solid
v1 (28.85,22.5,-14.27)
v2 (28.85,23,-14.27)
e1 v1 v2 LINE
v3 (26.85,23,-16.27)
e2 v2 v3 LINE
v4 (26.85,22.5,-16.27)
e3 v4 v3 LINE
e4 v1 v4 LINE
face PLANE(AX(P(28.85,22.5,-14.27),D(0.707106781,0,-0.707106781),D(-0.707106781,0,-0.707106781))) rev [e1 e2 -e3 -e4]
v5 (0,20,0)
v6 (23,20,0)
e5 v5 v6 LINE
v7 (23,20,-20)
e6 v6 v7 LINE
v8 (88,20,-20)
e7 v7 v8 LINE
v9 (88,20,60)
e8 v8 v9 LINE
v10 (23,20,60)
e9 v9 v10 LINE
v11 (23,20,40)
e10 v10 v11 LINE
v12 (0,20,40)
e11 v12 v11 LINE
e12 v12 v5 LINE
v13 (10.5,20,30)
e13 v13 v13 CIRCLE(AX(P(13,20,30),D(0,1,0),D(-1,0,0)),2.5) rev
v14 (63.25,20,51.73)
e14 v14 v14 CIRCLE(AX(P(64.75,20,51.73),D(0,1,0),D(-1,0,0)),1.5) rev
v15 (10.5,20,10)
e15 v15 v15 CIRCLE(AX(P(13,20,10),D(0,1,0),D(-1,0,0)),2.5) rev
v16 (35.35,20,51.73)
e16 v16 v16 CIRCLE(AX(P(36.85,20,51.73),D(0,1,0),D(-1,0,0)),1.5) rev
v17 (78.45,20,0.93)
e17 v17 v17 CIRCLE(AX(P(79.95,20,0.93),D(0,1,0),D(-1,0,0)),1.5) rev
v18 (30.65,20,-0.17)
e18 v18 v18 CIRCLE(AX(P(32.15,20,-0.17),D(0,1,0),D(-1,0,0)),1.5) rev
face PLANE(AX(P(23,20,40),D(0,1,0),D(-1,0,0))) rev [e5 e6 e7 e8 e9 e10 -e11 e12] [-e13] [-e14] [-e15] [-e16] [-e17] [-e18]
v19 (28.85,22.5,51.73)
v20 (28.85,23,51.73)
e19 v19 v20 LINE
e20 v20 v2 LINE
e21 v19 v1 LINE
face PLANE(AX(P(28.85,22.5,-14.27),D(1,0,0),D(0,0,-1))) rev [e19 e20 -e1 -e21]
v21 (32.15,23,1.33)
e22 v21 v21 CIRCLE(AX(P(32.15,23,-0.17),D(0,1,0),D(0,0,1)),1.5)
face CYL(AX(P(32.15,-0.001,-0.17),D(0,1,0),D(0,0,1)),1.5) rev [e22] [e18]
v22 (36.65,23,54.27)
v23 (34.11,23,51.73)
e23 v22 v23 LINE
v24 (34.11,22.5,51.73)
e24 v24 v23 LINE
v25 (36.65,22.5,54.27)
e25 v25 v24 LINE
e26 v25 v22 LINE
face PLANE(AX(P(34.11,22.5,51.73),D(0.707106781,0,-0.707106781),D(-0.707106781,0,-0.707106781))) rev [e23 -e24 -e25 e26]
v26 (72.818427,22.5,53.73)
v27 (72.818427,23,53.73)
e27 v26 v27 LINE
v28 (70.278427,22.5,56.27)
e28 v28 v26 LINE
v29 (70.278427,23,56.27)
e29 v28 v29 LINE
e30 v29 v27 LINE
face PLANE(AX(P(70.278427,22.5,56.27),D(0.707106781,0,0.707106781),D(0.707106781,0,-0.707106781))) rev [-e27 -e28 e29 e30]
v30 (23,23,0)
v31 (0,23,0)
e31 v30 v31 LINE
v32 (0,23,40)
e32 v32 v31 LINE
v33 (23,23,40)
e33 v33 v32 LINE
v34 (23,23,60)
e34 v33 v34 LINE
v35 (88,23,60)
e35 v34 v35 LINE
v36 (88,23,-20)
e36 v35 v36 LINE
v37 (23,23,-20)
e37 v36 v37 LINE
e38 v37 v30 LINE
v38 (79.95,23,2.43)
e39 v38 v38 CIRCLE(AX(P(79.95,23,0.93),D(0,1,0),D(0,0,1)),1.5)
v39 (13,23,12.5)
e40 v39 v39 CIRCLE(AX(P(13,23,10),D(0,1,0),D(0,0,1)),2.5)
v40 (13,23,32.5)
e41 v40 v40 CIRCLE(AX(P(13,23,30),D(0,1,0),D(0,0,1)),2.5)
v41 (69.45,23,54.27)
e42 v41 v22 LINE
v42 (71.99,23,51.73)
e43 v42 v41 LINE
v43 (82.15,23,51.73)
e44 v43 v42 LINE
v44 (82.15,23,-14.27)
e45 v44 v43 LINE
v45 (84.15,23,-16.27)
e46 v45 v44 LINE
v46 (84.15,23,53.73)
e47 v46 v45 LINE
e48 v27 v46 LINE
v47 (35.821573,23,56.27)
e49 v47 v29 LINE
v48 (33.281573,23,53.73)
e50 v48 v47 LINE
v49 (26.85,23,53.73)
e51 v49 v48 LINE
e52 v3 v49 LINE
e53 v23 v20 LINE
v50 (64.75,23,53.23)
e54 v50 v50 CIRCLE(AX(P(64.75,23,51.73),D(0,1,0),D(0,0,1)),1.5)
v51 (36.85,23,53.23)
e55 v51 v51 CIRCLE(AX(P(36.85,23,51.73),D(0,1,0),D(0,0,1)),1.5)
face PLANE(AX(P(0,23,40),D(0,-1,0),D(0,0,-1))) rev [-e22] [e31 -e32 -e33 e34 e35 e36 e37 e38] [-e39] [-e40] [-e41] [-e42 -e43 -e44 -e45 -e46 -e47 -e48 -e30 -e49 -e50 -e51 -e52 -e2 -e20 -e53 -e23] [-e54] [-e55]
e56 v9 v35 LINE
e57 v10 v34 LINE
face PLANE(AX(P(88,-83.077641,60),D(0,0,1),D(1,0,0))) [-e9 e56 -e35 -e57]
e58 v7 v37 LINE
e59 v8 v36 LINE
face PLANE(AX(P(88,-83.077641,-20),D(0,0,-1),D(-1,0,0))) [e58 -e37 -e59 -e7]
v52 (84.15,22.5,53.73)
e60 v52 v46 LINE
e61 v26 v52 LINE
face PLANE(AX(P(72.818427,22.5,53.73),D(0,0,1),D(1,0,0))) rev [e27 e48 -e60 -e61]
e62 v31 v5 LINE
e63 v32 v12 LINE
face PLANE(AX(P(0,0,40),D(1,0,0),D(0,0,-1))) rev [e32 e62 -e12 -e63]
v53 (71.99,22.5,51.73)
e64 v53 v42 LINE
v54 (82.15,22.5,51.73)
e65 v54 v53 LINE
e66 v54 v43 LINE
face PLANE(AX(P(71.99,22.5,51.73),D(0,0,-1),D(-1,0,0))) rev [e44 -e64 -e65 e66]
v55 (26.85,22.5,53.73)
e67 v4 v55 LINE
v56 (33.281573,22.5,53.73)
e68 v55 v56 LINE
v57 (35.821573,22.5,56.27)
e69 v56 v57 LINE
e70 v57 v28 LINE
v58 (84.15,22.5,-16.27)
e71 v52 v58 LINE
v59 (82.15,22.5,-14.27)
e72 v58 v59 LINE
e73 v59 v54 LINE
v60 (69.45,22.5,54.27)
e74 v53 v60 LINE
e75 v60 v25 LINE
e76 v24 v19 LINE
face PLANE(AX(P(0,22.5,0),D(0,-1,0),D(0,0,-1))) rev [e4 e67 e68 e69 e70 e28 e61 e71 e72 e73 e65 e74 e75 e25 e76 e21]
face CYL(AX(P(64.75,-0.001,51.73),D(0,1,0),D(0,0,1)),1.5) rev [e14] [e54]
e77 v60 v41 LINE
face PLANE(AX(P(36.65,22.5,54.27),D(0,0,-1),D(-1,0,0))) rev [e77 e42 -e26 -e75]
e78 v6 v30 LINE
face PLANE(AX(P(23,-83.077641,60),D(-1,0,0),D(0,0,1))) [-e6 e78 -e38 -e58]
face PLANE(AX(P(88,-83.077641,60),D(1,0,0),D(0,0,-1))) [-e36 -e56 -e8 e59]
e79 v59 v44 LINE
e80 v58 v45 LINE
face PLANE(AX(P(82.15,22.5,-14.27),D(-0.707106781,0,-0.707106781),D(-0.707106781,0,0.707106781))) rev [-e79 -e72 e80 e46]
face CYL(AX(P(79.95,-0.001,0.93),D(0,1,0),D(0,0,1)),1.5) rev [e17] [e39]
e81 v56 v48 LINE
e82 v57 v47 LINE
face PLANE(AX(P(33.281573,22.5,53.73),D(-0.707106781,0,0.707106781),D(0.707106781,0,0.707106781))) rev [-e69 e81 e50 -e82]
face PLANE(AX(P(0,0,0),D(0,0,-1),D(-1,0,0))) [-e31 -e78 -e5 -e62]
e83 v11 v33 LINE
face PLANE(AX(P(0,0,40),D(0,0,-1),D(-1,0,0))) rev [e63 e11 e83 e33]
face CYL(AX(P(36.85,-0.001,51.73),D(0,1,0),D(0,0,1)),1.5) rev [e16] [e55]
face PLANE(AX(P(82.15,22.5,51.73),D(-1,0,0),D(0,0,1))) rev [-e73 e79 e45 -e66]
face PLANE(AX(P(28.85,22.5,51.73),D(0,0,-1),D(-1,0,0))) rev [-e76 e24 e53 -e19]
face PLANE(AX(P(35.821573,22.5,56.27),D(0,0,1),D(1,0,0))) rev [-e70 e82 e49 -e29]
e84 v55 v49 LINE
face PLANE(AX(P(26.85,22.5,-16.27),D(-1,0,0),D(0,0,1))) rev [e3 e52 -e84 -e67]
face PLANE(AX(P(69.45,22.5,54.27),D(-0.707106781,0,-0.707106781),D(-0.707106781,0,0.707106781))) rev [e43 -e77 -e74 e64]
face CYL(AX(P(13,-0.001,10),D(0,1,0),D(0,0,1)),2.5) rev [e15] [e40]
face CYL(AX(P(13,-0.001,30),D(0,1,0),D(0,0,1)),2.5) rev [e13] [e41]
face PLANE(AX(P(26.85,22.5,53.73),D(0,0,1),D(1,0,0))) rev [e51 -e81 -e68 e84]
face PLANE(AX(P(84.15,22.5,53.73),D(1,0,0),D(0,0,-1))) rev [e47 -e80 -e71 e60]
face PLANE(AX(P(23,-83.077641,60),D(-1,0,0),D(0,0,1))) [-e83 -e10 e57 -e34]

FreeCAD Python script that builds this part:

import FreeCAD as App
import Part
import Sketcher


def edges_at(feature, points):
    """Names of the edges that pass closest to the given points."""
    edges = feature.Shape.Edges
    near = lambda p: min(range(len(edges)), key=lambda i: edges[i].distToShape(Part.Vertex(*p))[0])
    return sorted({f"Edge{near(p) + 1}" for p in points})

doc = App.newDocument("Part")
params = doc.addObject("Spreadsheet::Sheet", "Params")
for row, (alias, value) in enumerate([
    ("sketch1_width", "3 mm"),
    ("sketch1_width2", "20 mm"),
    ("pad1_length", "40 mm"),
    ("sketch2_diameter", "5 mm"),
    ("sketch3_diameter", "5 mm"),
    ("sketch4_diameter", "5 mm"),
    ("sketch5_diameter", "5 mm"),
    ("fillet_radius", "5 mm"),
    ("sketch6_width", "65 mm"),
    ("sketch6_height", "80 mm"),
    ("pad2_length", "3 mm"),
    ("sketch7_height", "66 mm"),
    ("sketch7_height2", "70 mm"),
    ("sketch7_width", "32.8 mm"),
    ("sketch7_width2", "10.16 mm"),
    ("sketch7_width3", "5.26 mm"),
    ("pocket5_length", "0.5 mm"),
    ("sketch8_diameter", "3 mm"),
    ("sketch9_diameter", "3 mm"),
    ("sketch10_diameter", "3 mm"),
    ("sketch11_diameter", "3 mm"),
    ("sketch12_width", "20 mm"),
    ("sketch12_height", "40 mm"),
], start=1):
    params.set(f"A{row}", alias)
    params.set(f"B{row}", "=" + value)
    params.setAlias(f"B{row}", alias)

body = doc.addObject("PartDesign::Body", "Body")

sketch1 = body.newObject("Sketcher::SketchObject", "Sketch")
sketch1.AttachmentSupport = (doc.getObject("XY_Plane"), [""])
sketch1.MapMode = "FlatFace"
sketch1.addGeometry(Part.LineSegment(App.Vector(0, 23, 0), App.Vector(0, 0, 0)), False)
sketch1.addGeometry(Part.LineSegment(App.Vector(0, 0, 0), App.Vector(3, 0, 0)), False)
sketch1.addGeometry(Part.LineSegment(App.Vector(3, 0, 0), App.Vector(3, 20, 0)), False)
sketch1.addGeometry(Part.LineSegment(App.Vector(3, 20, 0), App.Vector(23, 20, 0)), False)
sketch1.addGeometry(Part.LineSegment(App.Vector(23, 20, 0), App.Vector(23, 23, 0)), False)
sketch1.addGeometry(Part.LineSegment(App.Vector(23, 23, 0), App.Vector(0, 23, 0)), False)
sketch1.addConstraint(Sketcher.Constraint("Coincident", 0, 2, 1, 1))
sketch1.addConstraint(Sketcher.Constraint("Coincident", 1, 2, 2, 1))
sketch1.addConstraint(Sketcher.Constraint("Coincident", 2, 2, 3, 1))
sketch1.addConstraint(Sketcher.Constraint("Coincident", 3, 2, 4, 1))
sketch1.addConstraint(Sketcher.Constraint("Coincident", 4, 2, 5, 1))
sketch1.addConstraint(Sketcher.Constraint("Coincident", 5, 2, 0, 1))
sketch1.addConstraint(Sketcher.Constraint("Vertical", 0))
sketch1.addConstraint(Sketcher.Constraint("Horizontal", 1))
sketch1.addConstraint(Sketcher.Constraint("Vertical", 2))
sketch1.addConstraint(Sketcher.Constraint("Horizontal", 3))
sketch1.addConstraint(Sketcher.Constraint("Vertical", 4))
sketch1.addConstraint(Sketcher.Constraint("Horizontal", 5))
sketch1.addConstraint(Sketcher.Constraint("Coincident", 0, 2, -1, 1))
sketch1.addConstraint(Sketcher.Constraint("Equal", 5, 0))
sketch1.addConstraint(Sketcher.Constraint("Equal", 3, 2))
sketch1.addConstraint(Sketcher.Constraint("DistanceX", 1, 1, 1, 2, 3.0))
sketch1.addConstraint(Sketcher.Constraint("DistanceX", 3, 1, 3, 2, 20.0))
sketch1.setExpression("Constraints[15]", "Params.sketch1_width")
sketch1.setExpression("Constraints[16]", "Params.sketch1_width2")
pad1 = body.newObject("PartDesign::Pad", "Pad")
pad1.Profile = sketch1
pad1.setExpression("Length", "Params.pad1_length")

sketch2 = body.newObject("Sketcher::SketchObject", "Sketch001")
sketch2.AttachmentSupport = (doc.getObject("XZ_Plane"), [""])
sketch2.MapMode = "FlatFace"
sketch2.AttachmentOffset = App.Placement(App.Vector(0, 0, -23), App.Rotation())
sketch2.addGeometry(Part.Circle(App.Vector(13, 10, 0), App.Vector(0, 0, 1), 2.5), False)
sketch2.addConstraint(Sketcher.Constraint("Diameter", 0, 5.0))
sketch2.addConstraint(Sketcher.Constraint("DistanceX", -1, 1, 0, 3, 13.0))
sketch2.addConstraint(Sketcher.Constraint("DistanceY", -1, 1, 0, 3, 10.0))
sketch2.setExpression("Constraints[0]", "Params.sketch2_diameter")
pocket1 = body.newObject("PartDesign::Pocket", "Pocket")
pocket1.Profile = sketch2
pocket1.Type = "UpToFirst"
pocket1.Reversed = True

sketch3 = body.newObject("Sketcher::SketchObject", "Sketch002")
sketch3.AttachmentSupport = (doc.getObject("XZ_Plane"), [""])
sketch3.MapMode = "FlatFace"
sketch3.AttachmentOffset = App.Placement(App.Vector(0, 0, -23), App.Rotation())
sketch3.addGeometry(Part.Circle(App.Vector(13, 30, 0), App.Vector(0, 0, 1), 2.5), False)
sketch3.addConstraint(Sketcher.Constraint("Diameter", 0, 5.0))
sketch3.addConstraint(Sketcher.Constraint("DistanceX", -1, 1, 0, 3, 13.0))
sketch3.addConstraint(Sketcher.Constraint("DistanceY", -1, 1, 0, 3, 30.0))
sketch3.setExpression("Constraints[0]", "Params.sketch3_diameter")
pocket2 = body.newObject("PartDesign::Pocket", "Pocket001")
pocket2.Profile = sketch3
pocket2.Type = "UpToFirst"
pocket2.Reversed = True

sketch4 = body.newObject("Sketcher::SketchObject", "Sketch003")
sketch4.AttachmentSupport = (doc.getObject("YZ_Plane"), [""])
sketch4.MapMode = "FlatFace"
sketch4.addGeometry(Part.Circle(App.Vector(10, 10, 0), App.Vector(0, 0, 1), 2.5), False)
sketch4.addConstraint(Sketcher.Constraint("Diameter", 0, 5.0))
sketch4.addConstraint(Sketcher.Constraint("DistanceX", -1, 1, 0, 3, 10.0))
sketch4.addConstraint(Sketcher.Constraint("DistanceY", -1, 1, 0, 3, 10.0))
sketch4.setExpression("Constraints[0]", "Params.sketch4_diameter")
pocket3 = body.newObject("PartDesign::Pocket", "Pocket002")
pocket3.Profile = sketch4
pocket3.Type = "UpToFirst"
pocket3.Reversed = True

sketch5 = body.newObject("Sketcher::SketchObject", "Sketch004")
sketch5.AttachmentSupport = (doc.getObject("YZ_Plane"), [""])
sketch5.MapMode = "FlatFace"
sketch5.addGeometry(Part.Circle(App.Vector(10, 30, 0), App.Vector(0, 0, 1), 2.5), False)
sketch5.addConstraint(Sketcher.Constraint("Diameter", 0, 5.0))
sketch5.addConstraint(Sketcher.Constraint("DistanceX", -1, 1, 0, 3, 10.0))
sketch5.addConstraint(Sketcher.Constraint("DistanceY", -1, 1, 0, 3, 30.0))
sketch5.setExpression("Constraints[0]", "Params.sketch5_diameter")
pocket4 = body.newObject("PartDesign::Pocket", "Pocket003")
pocket4.Profile = sketch5
pocket4.Type = "UpToFirst"
pocket4.Reversed = True
doc.recompute()

fillet = body.newObject("PartDesign::Fillet", "Fillet")
fillet.Base = (pocket4, edges_at(pocket4, [(1.5, 0, 40), (1.5, 0, 0)]))
fillet.setExpression("Radius", "Params.fillet_radius")

sketch6 = body.newObject("Sketcher::SketchObject", "Sketch005")
sketch6.AttachmentSupport = (doc.getObject("XZ_Plane"), [""])
sketch6.MapMode = "FlatFace"
sketch6.AttachmentOffset = App.Placement(App.Vector(0, 0, -23), App.Rotation())
sketch6.addGeometry(Part.LineSegment(App.Vector(23, -20, 0), App.Vector(23, 60, 0)), False)
sketch6.addGeometry(Part.LineSegment(App.Vector(23, 60, 0), App.Vector(88, 60, 0)), False)
sketch6.addGeometry(Part.LineSegment(App.Vector(88, 60, 0), App.Vector(88, -20, 0)), False)
sketch6.addGeometry(Part.LineSegment(App.Vector(88, -20, 0), App.Vector(23, -20, 0)), False)
sketch6.addConstraint(Sketcher.Constraint("Coincident", 0, 2, 1, 1))
sketch6.addConstraint(Sketcher.Constraint("Coincident", 1, 2, 2, 1))
sketch6.addConstraint(Sketcher.Constraint("Coincident", 2, 2, 3, 1))
sketch6.addConstraint(Sketcher.Constraint("Coincident", 3, 2, 0, 1))
sketch6.addConstraint(Sketcher.Constraint("Vertical", 0))
sketch6.addConstraint(Sketcher.Constraint("Horizontal", 1))
sketch6.addConstraint(Sketcher.Constraint("Vertical", 2))
sketch6.addConstraint(Sketcher.Constraint("Horizontal", 3))
sketch6.addConstraint(Sketcher.Constraint("DistanceX", 1, 1, 1, 2, 65.0))
sketch6.addConstraint(Sketcher.Constraint("DistanceY", 0, 1, 0, 2, 80.0))
sketch6.addConstraint(Sketcher.Constraint("DistanceX", -1, 1, 0, 2, 23.0))
sketch6.addConstraint(Sketcher.Constraint("DistanceY", -1, 1, 0, 2, 60.0))
sketch6.setExpression("Constraints[8]", "Params.sketch6_width")
sketch6.setExpression("Constraints[9]", "Params.sketch6_height")
pad2 = body.newObject("PartDesign::Pad", "Pad001")
pad2.Profile = sketch6
pad2.setExpression("Length", "Params.pad2_length")

sketch7 = body.newObject("Sketcher::SketchObject", "Sketch006")
sketch7.AttachmentSupport = (doc.getObject("XZ_Plane"), [""])
sketch7.MapMode = "FlatFace"
sketch7.AttachmentOffset = App.Placement(App.Vector(0, 0, -23), App.Rotation())
sketch7.addGeometry(Part.LineSegment(App.Vector(28.85, 51.73, 0), App.Vector(28.85, -14.27, 0)), False)
sketch7.addGeometry(Part.LineSegment(App.Vector(28.85, -14.27, 0), App.Vector(26.85, -16.27, 0)), False)
sketch7.addGeometry(Part.LineSegment(App.Vector(26.85, -16.27, 0), App.Vector(26.85, 53.73, 0)), False)
sketch7.addGeometry(Part.LineSegment(App.Vector(26.85, 53.73, 0), App.Vector(33.281573, 53.73, 0)), False)
sketch7.addGeometry(Part.LineSegment(App.Vector(33.281573, 53.73, 0), App.Vector(35.821573, 56.27, 0)), False)
sketch7.addGeometry(Part.LineSegment(App.Vector(35.821573, 56.27, 0), App.Vector(70.278427, 56.27, 0)), False)
sketch7.addGeometry(Part.LineSegment(App.Vector(70.278427, 56.27, 0), App.Vector(72.818427, 53.73, 0)), False)
sketch7.addGeometry(Part.LineSegment(App.Vector(72.818427, 53.73, 0), App.Vector(84.15, 53.73, 0)), False)
sketch7.addGeometry(Part.LineSegment(App.Vector(84.15, 53.73, 0), App.Vector(84.15, -16.27, 0)), False)
sketch7.addGeometry(Part.LineSegment(App.Vector(84.15, -16.27, 0), App.Vector(82.15, -14.27, 0)), False)
sketch7.addGeometry(Part.LineSegment(App.Vector(82.15, -14.27, 0), App.Vector(82.15, 51.73, 0)), False)
sketch7.addGeometry(Part.LineSegment(App.Vector(82.15, 51.73, 0), App.Vector(71.99, 51.73, 0)), False)
sketch7.addGeometry(Part.LineSegment(App.Vector(71.99, 51.73, 0), App.Vector(69.45, 54.27, 0)), False)
sketch7.addGeometry(Part.LineSegment(App.Vector(69.45, 54.27, 0), App.Vector(36.65, 54.27, 0)), False)
sketch7.addGeometry(Part.LineSegment(App.Vector(36.65, 54.27, 0), App.Vector(34.11, 51.73, 0)), False)
sketch7.addGeometry(Part.LineSegment(App.Vector(34.11, 51.73, 0), App.Vector(28.85, 51.73, 0)), False)
sketch7.addConstraint(Sketcher.Constraint("Coincident", 0, 2, 1, 1))
sketch7.addConstraint(Sketcher.Constraint("Coincident", 1, 2, 2, 1))
sketch7.addConstraint(Sketcher.Constraint("Coincident", 2, 2, 3, 1))
sketch7.addConstraint(Sketcher.Constraint("Coincident", 3, 2, 4, 1))
sketch7.addConstraint(Sketcher.Constraint("Coincident", 4, 2, 5, 1))
sketch7.addConstraint(Sketcher.Constraint("Coincident", 5, 2, 6, 1))
sketch7.addConstraint(Sketcher.Constraint("Coincident", 6, 2, 7, 1))
sketch7.addConstraint(Sketcher.Constraint("Coincident", 7, 2, 8, 1))
sketch7.addConstraint(Sketcher.Constraint("Coincident", 8, 2, 9, 1))
sketch7.addConstraint(Sketcher.Constraint("Coincident", 9, 2, 10, 1))
sketch7.addConstraint(Sketcher.Constraint("Coincident", 10, 2, 11, 1))
sketch7.addConstraint(Sketcher.Constraint("Coincident", 11, 2, 12, 1))
sketch7.addConstraint(Sketcher.Constraint("Coincident", 12, 2, 13, 1))
sketch7.addConstraint(Sketcher.Constraint("Coincident", 13, 2, 14, 1))
sketch7.addConstraint(Sketcher.Constraint("Coincident", 14, 2, 15, 1))
sketch7.addConstraint(Sketcher.Constraint("Coincident", 15, 2, 0, 1))
sketch7.addConstraint(Sketcher.Constraint("Vertical", 0))
sketch7.addConstraint(Sketcher.Constraint("Vertical", 2))
sketch7.addConstraint(Sketcher.Constraint("Horizontal", 3))
sketch7.addConstraint(Sketcher.Constraint("Horizontal", 5))
sketch7.addConstraint(Sketcher.Constraint("Horizontal", 7))
sketch7.addConstraint(Sketcher.Constraint("Vertical", 8))
sketch7.addConstraint(Sketcher.Constraint("Vertical", 10))
sketch7.addConstraint(Sketcher.Constraint("Horizontal", 11))
sketch7.addConstraint(Sketcher.Constraint("Horizontal", 13))
sketch7.addConstraint(Sketcher.Constraint("Horizontal", 15))
sketch7.addConstraint(Sketcher.Constraint("Parallel", 1, 4))
sketch7.addConstraint(Sketcher.Constraint("Perpendicular", 4, 6))
sketch7.addConstraint(Sketcher.Constraint("Parallel", 6, 9))
sketch7.addConstraint(Sketcher.Constraint("Parallel", 9, 12))
sketch7.addConstraint(Sketcher.Constraint("Perpendicular", 12, 14))
sketch7.addConstraint(Sketcher.Constraint("Horizontal", 3, 2, 6, 2))
sketch7.addConstraint(Sketcher.Constraint("Horizontal", 1, 2, 8, 2))
sketch7.addConstraint(Sketcher.Constraint("Horizontal", 0, 2, 9, 2))
sketch7.addConstraint(Sketcher.Constraint("Horizontal", 11, 2, 14, 2))
sketch7.addConstraint(Sketcher.Constraint("Equal", 4, 6))
sketch7.addConstraint(Sketcher.Constraint("Equal", 6, 12))
sketch7.addConstraint(Sketcher.Constraint("DistanceY", 0, 2, 0, 1, 66.0))
sketch7.addConstraint(Sketcher.Constraint("DistanceY", 2, 1, 2, 2, 70.0))
sketch7.addConstraint(Sketcher.Constraint("DistanceX", 13, 2, 13, 1, 32.8))
sketch7.addConstraint(Sketcher.Constraint("DistanceX", 1, 2, 0, 2, 2.0))
sketch7.addConstraint(Sketcher.Constraint("DistanceX", 11, 2, 11, 1, 10.16))
sketch7.addConstraint(Sketcher.Constraint("DistanceX", 15, 2, 15, 1, 5.26))
sketch7.addConstraint(Sketcher.Constraint("DistanceX", 2, 2, 7, 2, 57.3))
sketch7.addConstraint(Sketcher.Constraint("DistanceX", -1, 1, 0, 2, 28.85))
sketch7.addConstraint(Sketcher.Constraint("DistanceY", 0, 2, -1, 1, 14.27))
sketch7.addConstraint(Sketcher.Constraint("DistanceX", 3, 1, 3, 2, 6.431573))
sketch7.addConstraint(Sketcher.Constraint("DistanceX", 5, 1, 5, 2, 34.456854))
sketch7.setExpression("Constraints[37]", "Params.sketch7_height")
sketch7.setExpression("Constraints[38]", "Params.sketch7_height2")
sketch7.setExpression("Constraints[39]", "Params.sketch7_width")
sketch7.setExpression("Constraints[41]", "Params.sketch7_width2")
sketch7.setExpression("Constraints[42]", "Params.sketch7_width3")
pocket5 = body.newObject("PartDesign::Pocket", "Pocket004")
pocket5.Profile = sketch7
pocket5.setExpression("Length", "Params.pocket5_length")
pocket5.Reversed = True

sketch8 = body.newObject("Sketcher::SketchObject", "Sketch007")
sketch8.AttachmentSupport = (doc.getObject("XZ_Plane"), [""])
sketch8.MapMode = "FlatFace"
sketch8.AttachmentOffset = App.Placement(App.Vector(0, 0, -23), App.Rotation())
sketch8.addGeometry(Part.Circle(App.Vector(32.15, -0.17, 0), App.Vector(0, 0, 1), 1.5), False)
sketch8.addConstraint(Sketcher.Constraint("Diameter", 0, 3.0))
sketch8.addConstraint(Sketcher.Constraint("DistanceX", -1, 1, 0, 3, 32.15))
sketch8.addConstraint(Sketcher.Constraint("DistanceY", 0, 3, -1, 1, 0.17))
sketch8.setExpression("Constraints[0]", "Params.sketch8_diameter")
pocket6 = body.newObject("PartDesign::Pocket", "Pocket005")
pocket6.Profile = sketch8
pocket6.Type = "UpToFirst"
pocket6.Reversed = True

sketch9 = body.newObject("Sketcher::SketchObject", "Sketch008")
sketch9.AttachmentSupport = (doc.getObject("XZ_Plane"), [""])
sketch9.MapMode = "FlatFace"
sketch9.AttachmentOffset = App.Placement(App.Vector(0, 0, -23), App.Rotation())
sketch9.addGeometry(Part.Circle(App.Vector(79.95, 0.93, 0), App.Vector(0, 0, 1), 1.5), False)
sketch9.addConstraint(Sketcher.Constraint("Diameter", 0, 3.0))
sketch9.addConstraint(Sketcher.Constraint("DistanceX", -1, 1, 0, 3, 79.95))
sketch9.addConstraint(Sketcher.Constraint("DistanceY", -1, 1, 0, 3, 0.93))
sketch9.setExpression("Constraints[0]", "Params.sketch9_diameter")
pocket7 = body.newObject("PartDesign::Pocket", "Pocket006")
pocket7.Profile = sketch9
pocket7.Type = "UpToFirst"
pocket7.Reversed = True

sketch10 = body.newObject("Sketcher::SketchObject", "Sketch009")
sketch10.AttachmentSupport = (doc.getObject("XZ_Plane"), [""])
sketch10.MapMode = "FlatFace"
sketch10.AttachmentOffset = App.Placement(App.Vector(0, 0, -23), App.Rotation())
sketch10.addGeometry(Part.Circle(App.Vector(64.75, 51.73, 0), App.Vector(0, 0, 1), 1.5), False)
sketch10.addConstraint(Sketcher.Constraint("Diameter", 0, 3.0))
sketch10.addConstraint(Sketcher.Constraint("DistanceX", -1, 1, 0, 3, 64.75))
sketch10.addConstraint(Sketcher.Constraint("DistanceY", -1, 1, 0, 3, 51.73))
sketch10.setExpression("Constraints[0]", "Params.sketch10_diameter")
pocket8 = body.newObject("PartDesign::Pocket", "Pocket007")
pocket8.Profile = sketch10
pocket8.Type = "UpToFirst"
pocket8.Reversed = True

sketch11 = body.newObject("Sketcher::SketchObject", "Sketch010")
sketch11.AttachmentSupport = (doc.getObject("XZ_Plane"), [""])
sketch11.MapMode = "FlatFace"
sketch11.AttachmentOffset = App.Placement(App.Vector(0, 0, -23), App.Rotation())
sketch11.addGeometry(Part.Circle(App.Vector(36.85, 51.73, 0), App.Vector(0, 0, 1), 1.5), False)
sketch11.addConstraint(Sketcher.Constraint("Diameter", 0, 3.0))
sketch11.addConstraint(Sketcher.Constraint("DistanceX", -1, 1, 0, 3, 36.85))
sketch11.addConstraint(Sketcher.Constraint("DistanceY", -1, 1, 0, 3, 51.73))
sketch11.setExpression("Constraints[0]", "Params.sketch11_diameter")
pocket9 = body.newObject("PartDesign::Pocket", "Pocket008")
pocket9.Profile = sketch11
pocket9.Type = "UpToFirst"
pocket9.Reversed = True

sketch12 = body.newObject("Sketcher::SketchObject", "Sketch011")
sketch12.AttachmentSupport = (doc.getObject("YZ_Plane"), [""])
sketch12.MapMode = "FlatFace"
sketch12.addGeometry(Part.LineSegment(App.Vector(20, 0, 0), App.Vector(0, 0, 0)), False)
sketch12.addGeometry(Part.LineSegment(App.Vector(0, 0, 0), App.Vector(0, 40, 0)), False)
sketch12.addGeometry(Part.LineSegment(App.Vector(0, 40, 0), App.Vector(20, 40, 0)), False)
sketch12.addGeometry(Part.LineSegment(App.Vector(20, 40, 0), App.Vector(20, 0, 0)), False)
sketch12.addConstraint(Sketcher.Constraint("Coincident", 0, 2, 1, 1))
sketch12.addConstraint(Sketcher.Constraint("Coincident", 1, 2, 2, 1))
sketch12.addConstraint(Sketcher.Constraint("Coincident", 2, 2, 3, 1))
sketch12.addConstraint(Sketcher.Constraint("Coincident", 3, 2, 0, 1))
sketch12.addConstraint(Sketcher.Constraint("Horizontal", 0))
sketch12.addConstraint(Sketcher.Constraint("Vertical", 1))
sketch12.addConstraint(Sketcher.Constraint("Horizontal", 2))
sketch12.addConstraint(Sketcher.Constraint("Vertical", 3))
sketch12.addConstraint(Sketcher.Constraint("Coincident", 0, 2, -1, 1))
sketch12.addConstraint(Sketcher.Constraint("DistanceX", 0, 2, 0, 1, 20.0))
sketch12.addConstraint(Sketcher.Constraint("DistanceY", 1, 1, 1, 2, 40.0))
sketch12.setExpression("Constraints[9]", "Params.sketch12_width")
sketch12.setExpression("Constraints[10]", "Params.sketch12_height")
pocket10 = body.newObject("PartDesign::Pocket", "Pocket009")
pocket10.Profile = sketch12
pocket10.Type = "UpToFirst"
pocket10.Reversed = True

doc.recompute()
